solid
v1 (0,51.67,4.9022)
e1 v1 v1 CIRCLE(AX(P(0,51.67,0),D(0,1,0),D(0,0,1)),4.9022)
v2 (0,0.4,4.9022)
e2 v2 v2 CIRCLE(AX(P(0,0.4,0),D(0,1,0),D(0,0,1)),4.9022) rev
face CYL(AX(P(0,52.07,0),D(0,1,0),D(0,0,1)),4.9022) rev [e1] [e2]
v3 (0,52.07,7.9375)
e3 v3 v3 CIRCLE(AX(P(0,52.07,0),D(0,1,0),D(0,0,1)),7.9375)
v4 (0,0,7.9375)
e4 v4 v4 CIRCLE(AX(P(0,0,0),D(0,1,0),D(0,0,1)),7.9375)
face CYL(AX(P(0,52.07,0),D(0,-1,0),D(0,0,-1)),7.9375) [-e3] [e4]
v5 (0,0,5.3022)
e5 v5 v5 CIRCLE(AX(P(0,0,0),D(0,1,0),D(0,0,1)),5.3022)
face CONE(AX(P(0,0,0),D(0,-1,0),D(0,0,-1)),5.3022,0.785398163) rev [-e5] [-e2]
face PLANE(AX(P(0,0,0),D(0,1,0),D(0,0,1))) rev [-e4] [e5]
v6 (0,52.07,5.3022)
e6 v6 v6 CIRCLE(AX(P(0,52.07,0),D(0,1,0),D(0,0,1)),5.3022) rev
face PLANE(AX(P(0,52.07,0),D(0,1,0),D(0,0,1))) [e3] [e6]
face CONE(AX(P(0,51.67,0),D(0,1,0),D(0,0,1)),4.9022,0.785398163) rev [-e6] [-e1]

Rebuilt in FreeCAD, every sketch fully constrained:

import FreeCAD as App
import Part
import Sketcher

V = App.Vector
Q = App.Units.Quantity


def edges_at(feature, points):
    """Names of the edges that pass closest to the given points."""
    edges = feature.Shape.Edges
    near = lambda p: min(range(len(edges)), key=lambda i: edges[i].distToShape(Part.Vertex(*p))[0])
    return sorted({f"Edge{near(p) + 1}" for p in points})

doc = App.newDocument("Part")
params = doc.addObject("Spreadsheet::Sheet", "Params")
for row, (alias, value) in enumerate([
    ("sketch1_diameter", "0.625 in"),
    ("pad1_length", "2.05 in"),
    ("sketch2_diameter", "0.386 in"),
    ("hole_diameter", "0.386 in"),
    ("chamfer_size", "0.4 mm"),
], start=1):
    params.set(f"A{row}", alias)
    params.set(f"B{row}", "=" + value)
    params.setAlias(f"B{row}", alias)

body = doc.addObject("PartDesign::Body", "Body")

# Sketch on XZ plane
sketch1 = body.newObject("Sketcher::SketchObject", "Sketch")
sketch1.AttachmentSupport = (doc.getObject("XZ_Plane"), [""])
sketch1.MapMode = "FlatFace"
sketch1.addGeometry(Part.Circle(V(0, 0, 0), V(0, 0, 1), 7.9375), False)
sketch1.addConstraint(Sketcher.Constraint("Coincident", 0, 3, -1, 1))
sketch1.addConstraint(Sketcher.Constraint("Diameter", 0, Q("0.625 in")))
sketch1.setExpression("Constraints[1]", "Params.sketch1_diameter")
pad1 = body.newObject("PartDesign::Pad", "Pad")
pad1.Profile = sketch1
pad1.setExpression("Length", "Params.pad1_length")
pad1.Reversed = True

# Sketch on XZ plane
sketch2 = body.newObject("Sketcher::SketchObject", "Sketch001")
sketch2.AttachmentSupport = (doc.getObject("XZ_Plane"), [""])
sketch2.MapMode = "FlatFace"
sketch2.AttachmentOffset = App.Placement(V(0, 0, -2.05 * 25.4), App.Rotation())
sketch2.addGeometry(Part.Circle(V(0, 0, 0), V(0, 0, 1), 4.9022), False)
sketch2.addConstraint(Sketcher.Constraint("Coincident", 0, 3, -1, 1))
sketch2.addConstraint(Sketcher.Constraint("Diameter", 0, Q("0.386 in")))
sketch2.setExpression("Constraints[1]", "Params.sketch2_diameter")
doc.recompute()
hole = body.newObject("PartDesign::Hole", "Hole")
hole.Profile = sketch2
hole.ThreadType = "None"
hole.setExpression("Diameter", "Params.hole_diameter")
hole.DepthType = "ThroughAll"
hole.Reversed = True
doc.recompute()

chamfer = body.newObject("PartDesign::Chamfer", "Chamfer")
chamfer.Base = (hole, edges_at(hole, [(4.902, 52.07, 0), (4.902, 0, 0)]))
chamfer.setExpression("Size", "Params.chamfer_size")

doc.recompute()
